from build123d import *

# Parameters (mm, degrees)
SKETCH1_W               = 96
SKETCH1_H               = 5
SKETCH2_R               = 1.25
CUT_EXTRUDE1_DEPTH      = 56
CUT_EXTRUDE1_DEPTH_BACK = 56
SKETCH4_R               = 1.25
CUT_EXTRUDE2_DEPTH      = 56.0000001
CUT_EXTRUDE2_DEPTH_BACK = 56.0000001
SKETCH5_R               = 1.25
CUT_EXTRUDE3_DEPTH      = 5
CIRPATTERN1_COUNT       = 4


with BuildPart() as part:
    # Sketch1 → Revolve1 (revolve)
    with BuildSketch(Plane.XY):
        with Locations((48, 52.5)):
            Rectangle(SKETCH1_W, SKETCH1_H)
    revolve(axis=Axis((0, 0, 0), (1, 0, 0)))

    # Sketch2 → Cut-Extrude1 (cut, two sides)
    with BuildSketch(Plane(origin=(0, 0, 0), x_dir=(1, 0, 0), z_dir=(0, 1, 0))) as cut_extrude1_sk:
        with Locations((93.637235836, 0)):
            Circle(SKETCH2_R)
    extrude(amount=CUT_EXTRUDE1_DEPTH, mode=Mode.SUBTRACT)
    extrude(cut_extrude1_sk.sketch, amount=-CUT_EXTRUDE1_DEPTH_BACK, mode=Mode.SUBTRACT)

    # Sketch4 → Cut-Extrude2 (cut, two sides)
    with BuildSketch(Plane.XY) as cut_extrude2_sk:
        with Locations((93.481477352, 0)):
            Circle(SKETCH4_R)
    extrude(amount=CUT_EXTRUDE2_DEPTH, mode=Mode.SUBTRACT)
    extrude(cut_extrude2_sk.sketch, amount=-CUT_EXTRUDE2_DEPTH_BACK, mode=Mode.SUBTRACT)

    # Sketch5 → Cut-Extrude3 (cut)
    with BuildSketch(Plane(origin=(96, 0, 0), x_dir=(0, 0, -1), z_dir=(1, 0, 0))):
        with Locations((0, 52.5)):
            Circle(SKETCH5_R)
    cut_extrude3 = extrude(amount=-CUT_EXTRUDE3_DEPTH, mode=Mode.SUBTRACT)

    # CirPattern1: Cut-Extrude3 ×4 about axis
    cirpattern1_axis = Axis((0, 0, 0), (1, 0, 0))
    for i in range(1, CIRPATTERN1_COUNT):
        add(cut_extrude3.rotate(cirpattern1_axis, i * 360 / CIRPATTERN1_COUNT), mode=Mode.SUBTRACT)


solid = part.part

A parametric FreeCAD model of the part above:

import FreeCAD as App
import Part
import Sketcher

doc = App.newDocument("Part")
params = doc.addObject("Spreadsheet::Sheet", "Params")
for row, (alias, value) in enumerate([
    ("sketch1_width", "96 mm"),
    ("sketch1_height", "5 mm"),
    ("revolution_angle", "360 deg"),
    ("sketch2_diameter", "2.5 mm"),
    ("sketch3_diameter", "2.5 mm"),
    ("sketch4_diameter", "2.5 mm"),
    ("pocket3_length", "5 mm"),
], start=1):
    params.set(f"A{row}", alias)
    params.set(f"B{row}", "=" + value)
    params.setAlias(f"B{row}", alias)

body = doc.addObject("PartDesign::Body", "Body")

# Sketch on XY plane
sketch1 = doc.addObject("Sketcher::SketchObject", "Sketch")
body.addObject(sketch1)
sketch1.AttachmentSupport = (doc.XY_Plane, [""])
sketch1.MapMode = "FlatFace"
sketch1.addGeometry(Part.LineSegment(App.Vector(0, 55, 0), App.Vector(0, 50, 0)), False)
sketch1.addGeometry(Part.LineSegment(App.Vector(0, 50, 0), App.Vector(96, 50, 0)), False)
sketch1.addGeometry(Part.LineSegment(App.Vector(96, 50, 0), App.Vector(96, 55, 0)), False)
sketch1.addGeometry(Part.LineSegment(App.Vector(96, 55, 0), App.Vector(0, 55, 0)), False)
sketch1.addConstraint(Sketcher.Constraint("Coincident", 0, 2, 1, 1))
sketch1.addConstraint(Sketcher.Constraint("Coincident", 1, 2, 2, 1))
sketch1.addConstraint(Sketcher.Constraint("Coincident", 2, 2, 3, 1))
sketch1.addConstraint(Sketcher.Constraint("Coincident", 3, 2, 0, 1))
sketch1.addConstraint(Sketcher.Constraint("Vertical", 0))
sketch1.addConstraint(Sketcher.Constraint("Horizontal", 1))
sketch1.addConstraint(Sketcher.Constraint("Vertical", 2))
sketch1.addConstraint(Sketcher.Constraint("Horizontal", 3))
sketch1.addConstraint(Sketcher.Constraint("PointOnObject", 0, 2, -2))
sketch1.addConstraint(Sketcher.Constraint("DistanceX", 1, 1, 1, 2, 96.0))
sketch1.addConstraint(Sketcher.Constraint("DistanceY", 0, 2, 0, 1, 5.0))
sketch1.addConstraint(Sketcher.Constraint("DistanceY", -1, 1, 0, 2, 50.0))
sketch1.setExpression("Constraints[9]", "Params.sketch1_width")
sketch1.setExpression("Constraints[10]", "Params.sketch1_height")
revolution = doc.addObject("PartDesign::Revolution", "Revolution")
body.addObject(revolution)
revolution.Profile = sketch1
revolution.ReferenceAxis = (sketch1, ["H_Axis"])
revolution.setExpression("Angle", "Params.revolution_angle")

# Sketch on XZ plane
sketch2 = doc.addObject("Sketcher::SketchObject", "Sketch001")
body.addObject(sketch2)
sketch2.AttachmentSupport = (doc.XZ_Plane, [""])
sketch2.MapMode = "FlatFace"
sketch2.addGeometry(Part.Circle(App.Vector(93.637236, 0, 0), App.Vector(0, 0, 1), 1.25), False)
sketch2.addConstraint(Sketcher.Constraint("PointOnObject", 0, 3, -1))
sketch2.addConstraint(Sketcher.Constraint("Diameter", 0, 2.5))
sketch2.addConstraint(Sketcher.Constraint("DistanceX", -1, 1, 0, 3, 93.637236))
sketch2.setExpression("Constraints[1]", "Params.sketch2_diameter")
pocket1 = doc.addObject("PartDesign::Pocket", "Pocket")
body.addObject(pocket1)
pocket1.Profile = sketch2
pocket1.Type = "ThroughAll"
pocket1.Midplane = True

# Sketch on XY plane
sketch3 = doc.addObject("Sketcher::SketchObject", "Sketch002")
body.addObject(sketch3)
sketch3.AttachmentSupport = (doc.XY_Plane, [""])
sketch3.MapMode = "FlatFace"
sketch3.addGeometry(Part.Circle(App.Vector(93.481477, 0, 0), App.Vector(0, 0, 1), 1.25), False)
sketch3.addConstraint(Sketcher.Constraint("PointOnObject", 0, 3, -1))
sketch3.addConstraint(Sketcher.Constraint("Diameter", 0, 2.5))
sketch3.addConstraint(Sketcher.Constraint("DistanceX", -1, 1, 0, 3, 93.481477))
sketch3.setExpression("Constraints[1]", "Params.sketch3_diameter")
pocket2 = doc.addObject("PartDesign::Pocket", "Pocket001")
body.addObject(pocket2)
pocket2.Profile = sketch3
pocket2.Type = "ThroughAll"
pocket2.Midplane = True

# Sketch on YZ plane
sketch4 = doc.addObject("Sketcher::SketchObject", "Sketch003")
body.addObject(sketch4)
sketch4.AttachmentSupport = (doc.YZ_Plane, [""])
sketch4.MapMode = "FlatFace"
sketch4.AttachmentOffset = App.Placement(App.Vector(0, 0, 96), App.Rotation())
sketch4.addGeometry(Part.Circle(App.Vector(52.5, 0, 0), App.Vector(0, 0, 1), 1.25), False)
sketch4.addConstraint(Sketcher.Constraint("PointOnObject", 0, 3, -1))
sketch4.addConstraint(Sketcher.Constraint("Diameter", 0, 2.5))
sketch4.addConstraint(Sketcher.Constraint("DistanceX", -1, 1, 0, 3, 52.5))
sketch4.setExpression("Constraints[1]", "Params.sketch4_diameter")
pocket3 = doc.addObject("PartDesign::Pocket", "Pocket002")
body.addObject(pocket3)
pocket3.Profile = sketch4
pocket3.setExpression("Length", "Params.pocket3_length")
doc.recompute()

polarpattern = doc.addObject("PartDesign::PolarPattern", "PolarPattern")
body.addObject(polarpattern)
polarpattern.Originals = [pocket3]
polarpattern.Axis = (doc.X_Axis, [""])
polarpattern.Angle = 360
polarpattern.Occurrences = 4
body.Tip = polarpattern

doc.recompute()
